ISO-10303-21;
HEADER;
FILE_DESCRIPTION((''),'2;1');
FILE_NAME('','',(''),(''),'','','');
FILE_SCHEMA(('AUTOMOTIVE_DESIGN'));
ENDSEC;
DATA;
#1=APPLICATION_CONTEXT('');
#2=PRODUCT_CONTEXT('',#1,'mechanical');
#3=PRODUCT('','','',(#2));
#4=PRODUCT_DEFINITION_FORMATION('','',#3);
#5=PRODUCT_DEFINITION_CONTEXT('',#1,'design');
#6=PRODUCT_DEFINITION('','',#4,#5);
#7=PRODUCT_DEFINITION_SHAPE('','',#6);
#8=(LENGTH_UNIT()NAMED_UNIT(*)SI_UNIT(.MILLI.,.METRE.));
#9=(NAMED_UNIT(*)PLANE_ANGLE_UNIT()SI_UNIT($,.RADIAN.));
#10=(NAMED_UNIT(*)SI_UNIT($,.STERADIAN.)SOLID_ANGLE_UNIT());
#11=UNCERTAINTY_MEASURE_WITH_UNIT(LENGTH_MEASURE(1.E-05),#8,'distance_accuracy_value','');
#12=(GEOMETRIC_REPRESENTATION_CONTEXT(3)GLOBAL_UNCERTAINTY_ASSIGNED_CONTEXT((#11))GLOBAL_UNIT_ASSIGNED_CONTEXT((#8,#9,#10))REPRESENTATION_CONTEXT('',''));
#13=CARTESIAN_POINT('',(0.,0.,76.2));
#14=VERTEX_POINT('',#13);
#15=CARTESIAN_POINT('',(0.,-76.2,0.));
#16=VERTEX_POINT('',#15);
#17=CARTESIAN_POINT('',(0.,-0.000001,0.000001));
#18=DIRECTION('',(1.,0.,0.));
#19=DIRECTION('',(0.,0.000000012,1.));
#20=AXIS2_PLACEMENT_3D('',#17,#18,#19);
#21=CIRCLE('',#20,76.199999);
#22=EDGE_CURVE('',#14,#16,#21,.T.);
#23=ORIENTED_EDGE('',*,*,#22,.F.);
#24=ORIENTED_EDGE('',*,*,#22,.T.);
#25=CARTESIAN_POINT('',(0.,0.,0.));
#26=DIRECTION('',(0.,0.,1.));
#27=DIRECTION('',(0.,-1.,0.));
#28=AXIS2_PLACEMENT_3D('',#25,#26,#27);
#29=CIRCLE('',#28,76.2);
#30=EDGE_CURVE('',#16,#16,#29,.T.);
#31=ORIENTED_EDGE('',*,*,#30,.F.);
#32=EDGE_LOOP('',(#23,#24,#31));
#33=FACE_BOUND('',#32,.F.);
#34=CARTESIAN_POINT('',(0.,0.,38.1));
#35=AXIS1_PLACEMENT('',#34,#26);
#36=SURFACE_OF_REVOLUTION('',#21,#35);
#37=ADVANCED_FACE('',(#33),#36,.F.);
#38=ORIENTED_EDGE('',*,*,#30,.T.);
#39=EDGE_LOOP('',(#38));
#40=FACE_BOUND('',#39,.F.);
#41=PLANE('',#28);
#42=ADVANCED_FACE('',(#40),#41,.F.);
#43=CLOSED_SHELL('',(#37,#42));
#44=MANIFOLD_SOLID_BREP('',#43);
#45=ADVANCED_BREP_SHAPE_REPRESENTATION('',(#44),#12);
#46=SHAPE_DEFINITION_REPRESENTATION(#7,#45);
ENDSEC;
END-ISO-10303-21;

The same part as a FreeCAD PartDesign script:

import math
import FreeCAD as App
import Part
import Sketcher
Q = App.Units.Quantity

doc = App.newDocument("Part")
body = doc.addObject("PartDesign::Body", "Body")

# Sketch on YZ plane
sketch1 = body.newObject("Sketcher::SketchObject", "Sketch")
sketch1.AttachmentSupport = (doc.getObject("YZ_Plane"), [""])
sketch1.MapMode = "FlatFace"
sketch1.addGeometry(Part.LineSegment(App.Vector(-76.2, 0, 0), App.Vector(0, 0, 0)), False)
sketch1.addGeometry(Part.LineSegment(App.Vector(0, 0, 0), App.Vector(0, 76.2, 0)), False)
sketch1.addGeometry(Part.ArcOfCircle(Part.Circle(App.Vector(-0.000001, 0.000001, 0), App.Vector(0, 0, 1), 76.199999), math.radians(89.999999), math.radians(180.000001)), False)
sketch1.addConstraint(Sketcher.Constraint("Coincident", 0, 2, 1, 1))
sketch1.addConstraint(Sketcher.Constraint("Coincident", 1, 2, 2, 1))
sketch1.addConstraint(Sketcher.Constraint("Coincident", 2, 2, 0, 1))
sketch1.addConstraint(Sketcher.Constraint("Horizontal", 0))
sketch1.addConstraint(Sketcher.Constraint("Vertical", 1))
sketch1.addConstraint(Sketcher.Constraint("Coincident", 2, 3, -1, 1))
sketch1.addConstraint(Sketcher.Constraint("Coincident", 0, 2, -1, 1))
sketch1.addConstraint(Sketcher.Constraint("Radius", 2, Q("3 in")))
revolution = body.newObject("PartDesign::Revolution", "Revolution")
revolution.Profile = sketch1
revolution.ReferenceAxis = (sketch1, ["V_Axis"])
revolution.Angle = 360

doc.recompute()
